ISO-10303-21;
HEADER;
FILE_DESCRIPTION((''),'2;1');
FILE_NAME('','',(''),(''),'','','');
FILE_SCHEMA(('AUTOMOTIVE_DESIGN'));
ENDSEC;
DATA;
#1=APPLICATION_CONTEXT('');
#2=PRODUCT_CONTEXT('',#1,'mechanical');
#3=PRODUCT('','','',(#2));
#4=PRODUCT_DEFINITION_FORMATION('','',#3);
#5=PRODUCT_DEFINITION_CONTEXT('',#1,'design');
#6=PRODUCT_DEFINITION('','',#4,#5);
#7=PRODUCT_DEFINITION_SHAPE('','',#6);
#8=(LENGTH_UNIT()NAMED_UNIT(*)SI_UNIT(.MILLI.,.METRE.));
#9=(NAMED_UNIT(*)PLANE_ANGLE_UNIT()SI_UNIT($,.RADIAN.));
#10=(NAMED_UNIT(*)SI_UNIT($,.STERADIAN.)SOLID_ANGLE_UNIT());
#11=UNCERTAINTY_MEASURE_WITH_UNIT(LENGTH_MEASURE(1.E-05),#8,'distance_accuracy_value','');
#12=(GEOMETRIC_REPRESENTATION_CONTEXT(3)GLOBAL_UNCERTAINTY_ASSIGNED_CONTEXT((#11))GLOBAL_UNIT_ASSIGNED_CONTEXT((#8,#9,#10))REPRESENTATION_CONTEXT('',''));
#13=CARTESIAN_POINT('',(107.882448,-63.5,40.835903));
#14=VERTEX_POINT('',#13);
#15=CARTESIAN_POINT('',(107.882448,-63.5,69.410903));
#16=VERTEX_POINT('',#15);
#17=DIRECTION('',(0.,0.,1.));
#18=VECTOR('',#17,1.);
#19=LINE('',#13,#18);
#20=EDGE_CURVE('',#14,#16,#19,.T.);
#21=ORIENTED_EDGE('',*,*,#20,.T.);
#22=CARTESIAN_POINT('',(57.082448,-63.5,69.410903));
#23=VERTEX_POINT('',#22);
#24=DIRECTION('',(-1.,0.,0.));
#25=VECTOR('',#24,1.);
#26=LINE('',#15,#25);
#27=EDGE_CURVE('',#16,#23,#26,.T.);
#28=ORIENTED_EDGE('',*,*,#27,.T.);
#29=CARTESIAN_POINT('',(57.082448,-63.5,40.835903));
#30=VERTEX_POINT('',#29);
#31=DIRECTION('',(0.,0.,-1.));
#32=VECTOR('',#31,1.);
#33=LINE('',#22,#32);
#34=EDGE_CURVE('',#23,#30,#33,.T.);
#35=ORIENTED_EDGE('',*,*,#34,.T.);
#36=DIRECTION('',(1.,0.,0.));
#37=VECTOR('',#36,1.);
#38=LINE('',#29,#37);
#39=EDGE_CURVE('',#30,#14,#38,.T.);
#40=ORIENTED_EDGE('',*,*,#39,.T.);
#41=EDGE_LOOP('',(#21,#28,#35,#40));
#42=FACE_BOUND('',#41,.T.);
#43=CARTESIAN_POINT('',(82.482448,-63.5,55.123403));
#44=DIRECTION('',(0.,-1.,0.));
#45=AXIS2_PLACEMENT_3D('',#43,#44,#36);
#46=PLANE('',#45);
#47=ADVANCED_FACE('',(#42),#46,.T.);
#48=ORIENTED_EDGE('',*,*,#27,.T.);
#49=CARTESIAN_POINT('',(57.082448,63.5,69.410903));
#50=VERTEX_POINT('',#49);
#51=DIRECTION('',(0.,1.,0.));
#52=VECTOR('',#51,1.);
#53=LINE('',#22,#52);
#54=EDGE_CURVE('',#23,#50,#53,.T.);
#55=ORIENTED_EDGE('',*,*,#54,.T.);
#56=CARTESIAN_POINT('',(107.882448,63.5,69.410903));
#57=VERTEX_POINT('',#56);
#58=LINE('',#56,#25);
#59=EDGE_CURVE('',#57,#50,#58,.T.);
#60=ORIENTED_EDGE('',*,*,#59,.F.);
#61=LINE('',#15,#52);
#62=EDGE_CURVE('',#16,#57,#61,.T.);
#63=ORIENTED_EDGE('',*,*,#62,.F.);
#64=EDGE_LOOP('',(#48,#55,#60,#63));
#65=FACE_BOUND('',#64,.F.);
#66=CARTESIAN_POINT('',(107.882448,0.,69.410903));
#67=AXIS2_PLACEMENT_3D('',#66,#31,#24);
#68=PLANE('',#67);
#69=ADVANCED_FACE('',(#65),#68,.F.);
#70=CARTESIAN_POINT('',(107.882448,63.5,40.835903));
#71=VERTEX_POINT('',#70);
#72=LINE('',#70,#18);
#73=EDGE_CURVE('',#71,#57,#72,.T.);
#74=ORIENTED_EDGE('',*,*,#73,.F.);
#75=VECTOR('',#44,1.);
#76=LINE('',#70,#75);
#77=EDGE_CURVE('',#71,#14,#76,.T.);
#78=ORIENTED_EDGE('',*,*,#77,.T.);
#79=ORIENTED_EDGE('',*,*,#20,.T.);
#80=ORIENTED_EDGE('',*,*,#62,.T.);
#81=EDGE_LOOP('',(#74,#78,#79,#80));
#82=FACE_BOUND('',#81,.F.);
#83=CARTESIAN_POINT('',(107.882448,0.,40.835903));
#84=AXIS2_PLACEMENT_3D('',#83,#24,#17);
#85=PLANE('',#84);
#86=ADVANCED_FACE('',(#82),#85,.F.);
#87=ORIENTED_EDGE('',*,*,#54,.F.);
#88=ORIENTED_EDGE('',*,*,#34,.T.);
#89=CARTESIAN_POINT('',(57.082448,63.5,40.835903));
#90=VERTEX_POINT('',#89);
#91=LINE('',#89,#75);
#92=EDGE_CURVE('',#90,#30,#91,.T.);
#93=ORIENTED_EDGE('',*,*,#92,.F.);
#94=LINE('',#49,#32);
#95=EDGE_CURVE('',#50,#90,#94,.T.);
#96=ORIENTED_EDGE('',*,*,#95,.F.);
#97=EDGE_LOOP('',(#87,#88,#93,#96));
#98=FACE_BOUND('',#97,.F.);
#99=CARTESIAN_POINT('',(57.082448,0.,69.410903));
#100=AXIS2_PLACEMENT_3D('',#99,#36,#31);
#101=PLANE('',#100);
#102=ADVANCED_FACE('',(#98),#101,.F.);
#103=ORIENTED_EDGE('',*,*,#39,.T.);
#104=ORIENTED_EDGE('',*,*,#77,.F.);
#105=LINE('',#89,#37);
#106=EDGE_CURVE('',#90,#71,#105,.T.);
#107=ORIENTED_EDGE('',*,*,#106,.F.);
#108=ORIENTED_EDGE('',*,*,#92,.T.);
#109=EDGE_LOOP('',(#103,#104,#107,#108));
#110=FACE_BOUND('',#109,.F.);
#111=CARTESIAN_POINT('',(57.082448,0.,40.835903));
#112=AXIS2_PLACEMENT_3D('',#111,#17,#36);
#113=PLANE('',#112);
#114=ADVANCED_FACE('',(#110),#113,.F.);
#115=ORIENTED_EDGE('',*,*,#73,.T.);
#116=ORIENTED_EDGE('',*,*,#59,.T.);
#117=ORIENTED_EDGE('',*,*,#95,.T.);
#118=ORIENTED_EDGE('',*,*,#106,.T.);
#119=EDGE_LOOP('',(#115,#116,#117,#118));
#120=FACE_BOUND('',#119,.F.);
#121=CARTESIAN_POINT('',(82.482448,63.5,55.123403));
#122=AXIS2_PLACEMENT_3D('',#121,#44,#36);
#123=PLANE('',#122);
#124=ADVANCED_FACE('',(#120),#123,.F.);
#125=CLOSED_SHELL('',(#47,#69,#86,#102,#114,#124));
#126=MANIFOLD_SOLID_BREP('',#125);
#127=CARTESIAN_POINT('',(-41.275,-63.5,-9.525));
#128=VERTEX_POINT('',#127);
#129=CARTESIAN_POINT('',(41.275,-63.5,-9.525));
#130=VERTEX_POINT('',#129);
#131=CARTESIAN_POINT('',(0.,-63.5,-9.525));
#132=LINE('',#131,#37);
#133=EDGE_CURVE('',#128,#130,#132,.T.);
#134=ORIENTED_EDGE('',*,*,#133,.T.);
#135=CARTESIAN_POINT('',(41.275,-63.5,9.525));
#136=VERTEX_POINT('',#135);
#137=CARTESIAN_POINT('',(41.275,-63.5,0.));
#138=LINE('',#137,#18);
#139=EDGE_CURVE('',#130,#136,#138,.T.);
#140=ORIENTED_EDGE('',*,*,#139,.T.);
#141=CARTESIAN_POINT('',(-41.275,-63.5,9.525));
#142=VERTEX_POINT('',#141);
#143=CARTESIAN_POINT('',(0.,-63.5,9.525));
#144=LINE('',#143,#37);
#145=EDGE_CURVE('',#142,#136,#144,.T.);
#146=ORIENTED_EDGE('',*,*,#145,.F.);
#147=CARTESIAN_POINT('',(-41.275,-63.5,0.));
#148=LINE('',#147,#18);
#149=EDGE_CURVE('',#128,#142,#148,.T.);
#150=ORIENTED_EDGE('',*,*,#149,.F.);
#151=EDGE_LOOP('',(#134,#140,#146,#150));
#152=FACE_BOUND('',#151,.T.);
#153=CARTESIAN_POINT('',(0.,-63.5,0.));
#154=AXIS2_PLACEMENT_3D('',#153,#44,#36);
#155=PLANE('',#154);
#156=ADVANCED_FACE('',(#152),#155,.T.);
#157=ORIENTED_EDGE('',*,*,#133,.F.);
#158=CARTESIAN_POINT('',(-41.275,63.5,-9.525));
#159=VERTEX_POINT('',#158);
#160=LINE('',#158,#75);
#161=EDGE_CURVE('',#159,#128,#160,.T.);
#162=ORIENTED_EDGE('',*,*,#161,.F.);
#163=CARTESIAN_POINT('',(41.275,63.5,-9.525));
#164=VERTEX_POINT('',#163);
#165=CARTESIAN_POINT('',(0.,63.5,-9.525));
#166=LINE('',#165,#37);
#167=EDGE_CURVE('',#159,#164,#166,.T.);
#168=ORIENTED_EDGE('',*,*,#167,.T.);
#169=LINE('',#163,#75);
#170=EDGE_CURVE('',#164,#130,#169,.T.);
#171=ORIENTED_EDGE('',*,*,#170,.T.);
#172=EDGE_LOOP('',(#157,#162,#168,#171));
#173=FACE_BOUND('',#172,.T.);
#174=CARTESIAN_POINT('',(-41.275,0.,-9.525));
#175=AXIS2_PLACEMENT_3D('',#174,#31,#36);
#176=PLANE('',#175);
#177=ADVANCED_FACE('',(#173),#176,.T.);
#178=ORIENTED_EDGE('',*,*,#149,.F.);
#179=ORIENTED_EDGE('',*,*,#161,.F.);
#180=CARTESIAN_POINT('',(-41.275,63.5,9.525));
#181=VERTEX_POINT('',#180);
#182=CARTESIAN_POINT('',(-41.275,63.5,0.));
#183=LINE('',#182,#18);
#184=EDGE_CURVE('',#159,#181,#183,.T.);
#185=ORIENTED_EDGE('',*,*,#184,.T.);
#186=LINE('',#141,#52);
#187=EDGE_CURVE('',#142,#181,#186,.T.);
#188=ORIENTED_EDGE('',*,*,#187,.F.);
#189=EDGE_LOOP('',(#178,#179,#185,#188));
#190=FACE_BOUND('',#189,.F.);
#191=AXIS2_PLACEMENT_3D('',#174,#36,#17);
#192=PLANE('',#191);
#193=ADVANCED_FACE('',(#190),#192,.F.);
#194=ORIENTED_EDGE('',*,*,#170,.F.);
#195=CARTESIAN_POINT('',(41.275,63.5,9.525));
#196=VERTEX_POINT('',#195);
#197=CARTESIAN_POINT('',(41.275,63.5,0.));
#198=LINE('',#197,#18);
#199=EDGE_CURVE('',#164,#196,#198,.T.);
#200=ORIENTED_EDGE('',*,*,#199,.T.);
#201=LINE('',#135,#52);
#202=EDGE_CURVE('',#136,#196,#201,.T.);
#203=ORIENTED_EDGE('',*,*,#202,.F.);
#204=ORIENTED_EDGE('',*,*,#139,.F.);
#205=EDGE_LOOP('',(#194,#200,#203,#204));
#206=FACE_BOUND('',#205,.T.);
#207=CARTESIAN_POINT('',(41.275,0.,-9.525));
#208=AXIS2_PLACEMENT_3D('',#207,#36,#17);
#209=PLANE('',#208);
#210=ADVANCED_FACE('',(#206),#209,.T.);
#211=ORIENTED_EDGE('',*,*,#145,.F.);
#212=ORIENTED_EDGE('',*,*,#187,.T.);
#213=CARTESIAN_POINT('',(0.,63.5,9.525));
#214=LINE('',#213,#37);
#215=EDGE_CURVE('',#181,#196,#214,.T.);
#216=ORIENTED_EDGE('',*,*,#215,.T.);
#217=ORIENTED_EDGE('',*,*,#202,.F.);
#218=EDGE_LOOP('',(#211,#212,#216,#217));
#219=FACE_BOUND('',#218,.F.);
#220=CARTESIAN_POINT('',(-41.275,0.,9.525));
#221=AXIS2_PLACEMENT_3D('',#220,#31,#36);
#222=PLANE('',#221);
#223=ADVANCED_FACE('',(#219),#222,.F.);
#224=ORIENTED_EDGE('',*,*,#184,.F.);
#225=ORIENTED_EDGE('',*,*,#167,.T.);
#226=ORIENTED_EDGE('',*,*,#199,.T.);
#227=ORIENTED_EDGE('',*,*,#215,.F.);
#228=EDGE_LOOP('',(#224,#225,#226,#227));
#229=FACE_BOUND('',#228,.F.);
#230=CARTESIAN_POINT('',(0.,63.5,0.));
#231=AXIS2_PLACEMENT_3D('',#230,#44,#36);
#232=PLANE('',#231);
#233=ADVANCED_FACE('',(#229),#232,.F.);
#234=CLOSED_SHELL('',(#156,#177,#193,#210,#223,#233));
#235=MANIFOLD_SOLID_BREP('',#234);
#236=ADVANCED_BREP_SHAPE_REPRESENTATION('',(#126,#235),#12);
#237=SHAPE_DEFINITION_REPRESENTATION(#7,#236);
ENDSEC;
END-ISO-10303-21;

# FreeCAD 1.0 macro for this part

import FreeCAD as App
import Part
import Sketcher
Q = App.Units.Quantity


def add_polygon(sketch, points):
    """Adds a closed chain of lines whose ends are joined by coincident constraints."""
    first, n = sketch.GeometryCount, len(points)
    for a, b in zip(points, points[1:] + points[:1]):
        sketch.addGeometry(Part.LineSegment(App.Vector(*a, 0), App.Vector(*b, 0)), False)
    for i in range(n):
        sketch.addConstraint(Sketcher.Constraint("Coincident", first + i, 2, first + (i + 1) % n, 1))

doc = App.newDocument("Part")
params = doc.addObject("Spreadsheet::Sheet", "Params")
for row, (alias, value) in enumerate([
    ("sketch1_width", "2 in"),
    ("sketch1_width2", "3.25 in"),
    ("sketch1_height", "0.75 in"),
    ("sketch1_height2", "1.125 in"),
    ("pad1_length", "5 in"),
], start=1):
    params.set(f"A{row}", alias)
    params.set(f"B{row}", "=" + value)
    params.setAlias(f"B{row}", alias)

body = doc.addObject("PartDesign::Body", "Body")
body.AllowCompound = True

# Sketch on XZ plane
sketch1 = body.newObject("Sketcher::SketchObject", "Sketch")
sketch1.AttachmentSupport = (doc.getObject("XZ_Plane"), [""])
sketch1.MapMode = "FlatFace"
add_polygon(sketch1, [(57.082448, 69.410903), (57.082448, 40.835903), (107.882448, 40.835903), (107.882448, 69.410903)])  # lines 0-3
add_polygon(sketch1, [(-41.275, 9.525), (-41.275, -9.525), (41.275, -9.525), (41.275, 9.525)])  # lines 4-7
sketch1.addConstraint([
    Sketcher.Constraint("Vertical", 0),
    Sketcher.Constraint("Horizontal", 1),
    Sketcher.Constraint("Vertical", 2),
    Sketcher.Constraint("Horizontal", 3),
    Sketcher.Constraint("Vertical", 4),
    Sketcher.Constraint("Horizontal", 5),
    Sketcher.Constraint("Vertical", 6),
    Sketcher.Constraint("Horizontal", 7),
    Sketcher.Constraint("Symmetric", 4, 2, 6, 2, -1, 1),
    Sketcher.Constraint("DistanceX", 1, 1, 1, 2, Q("2 in")),
    Sketcher.Constraint("DistanceX", 5, 1, 5, 2, Q("3.25 in")),
    Sketcher.Constraint("DistanceY", 4, 2, 4, 1, Q("0.75 in")),
    Sketcher.Constraint("DistanceY", 0, 2, 0, 1, Q("1.125 in")),
    Sketcher.Constraint("DistanceX", 4, 2, 0, 2, 98.357448),
    Sketcher.Constraint("DistanceY", -1, 1, 0, 2, 40.835903),
])
sketch1.setExpression("Constraints[17]", "Params.sketch1_width")
sketch1.setExpression("Constraints[18]", "Params.sketch1_width2")
sketch1.setExpression("Constraints[19]", "Params.sketch1_height")
sketch1.setExpression("Constraints[20]", "Params.sketch1_height2")
pad1 = body.newObject("PartDesign::Pad", "Pad")
pad1.Profile = sketch1
pad1.setExpression("Length", "Params.pad1_length")
pad1.Midplane = True

doc.recompute()
